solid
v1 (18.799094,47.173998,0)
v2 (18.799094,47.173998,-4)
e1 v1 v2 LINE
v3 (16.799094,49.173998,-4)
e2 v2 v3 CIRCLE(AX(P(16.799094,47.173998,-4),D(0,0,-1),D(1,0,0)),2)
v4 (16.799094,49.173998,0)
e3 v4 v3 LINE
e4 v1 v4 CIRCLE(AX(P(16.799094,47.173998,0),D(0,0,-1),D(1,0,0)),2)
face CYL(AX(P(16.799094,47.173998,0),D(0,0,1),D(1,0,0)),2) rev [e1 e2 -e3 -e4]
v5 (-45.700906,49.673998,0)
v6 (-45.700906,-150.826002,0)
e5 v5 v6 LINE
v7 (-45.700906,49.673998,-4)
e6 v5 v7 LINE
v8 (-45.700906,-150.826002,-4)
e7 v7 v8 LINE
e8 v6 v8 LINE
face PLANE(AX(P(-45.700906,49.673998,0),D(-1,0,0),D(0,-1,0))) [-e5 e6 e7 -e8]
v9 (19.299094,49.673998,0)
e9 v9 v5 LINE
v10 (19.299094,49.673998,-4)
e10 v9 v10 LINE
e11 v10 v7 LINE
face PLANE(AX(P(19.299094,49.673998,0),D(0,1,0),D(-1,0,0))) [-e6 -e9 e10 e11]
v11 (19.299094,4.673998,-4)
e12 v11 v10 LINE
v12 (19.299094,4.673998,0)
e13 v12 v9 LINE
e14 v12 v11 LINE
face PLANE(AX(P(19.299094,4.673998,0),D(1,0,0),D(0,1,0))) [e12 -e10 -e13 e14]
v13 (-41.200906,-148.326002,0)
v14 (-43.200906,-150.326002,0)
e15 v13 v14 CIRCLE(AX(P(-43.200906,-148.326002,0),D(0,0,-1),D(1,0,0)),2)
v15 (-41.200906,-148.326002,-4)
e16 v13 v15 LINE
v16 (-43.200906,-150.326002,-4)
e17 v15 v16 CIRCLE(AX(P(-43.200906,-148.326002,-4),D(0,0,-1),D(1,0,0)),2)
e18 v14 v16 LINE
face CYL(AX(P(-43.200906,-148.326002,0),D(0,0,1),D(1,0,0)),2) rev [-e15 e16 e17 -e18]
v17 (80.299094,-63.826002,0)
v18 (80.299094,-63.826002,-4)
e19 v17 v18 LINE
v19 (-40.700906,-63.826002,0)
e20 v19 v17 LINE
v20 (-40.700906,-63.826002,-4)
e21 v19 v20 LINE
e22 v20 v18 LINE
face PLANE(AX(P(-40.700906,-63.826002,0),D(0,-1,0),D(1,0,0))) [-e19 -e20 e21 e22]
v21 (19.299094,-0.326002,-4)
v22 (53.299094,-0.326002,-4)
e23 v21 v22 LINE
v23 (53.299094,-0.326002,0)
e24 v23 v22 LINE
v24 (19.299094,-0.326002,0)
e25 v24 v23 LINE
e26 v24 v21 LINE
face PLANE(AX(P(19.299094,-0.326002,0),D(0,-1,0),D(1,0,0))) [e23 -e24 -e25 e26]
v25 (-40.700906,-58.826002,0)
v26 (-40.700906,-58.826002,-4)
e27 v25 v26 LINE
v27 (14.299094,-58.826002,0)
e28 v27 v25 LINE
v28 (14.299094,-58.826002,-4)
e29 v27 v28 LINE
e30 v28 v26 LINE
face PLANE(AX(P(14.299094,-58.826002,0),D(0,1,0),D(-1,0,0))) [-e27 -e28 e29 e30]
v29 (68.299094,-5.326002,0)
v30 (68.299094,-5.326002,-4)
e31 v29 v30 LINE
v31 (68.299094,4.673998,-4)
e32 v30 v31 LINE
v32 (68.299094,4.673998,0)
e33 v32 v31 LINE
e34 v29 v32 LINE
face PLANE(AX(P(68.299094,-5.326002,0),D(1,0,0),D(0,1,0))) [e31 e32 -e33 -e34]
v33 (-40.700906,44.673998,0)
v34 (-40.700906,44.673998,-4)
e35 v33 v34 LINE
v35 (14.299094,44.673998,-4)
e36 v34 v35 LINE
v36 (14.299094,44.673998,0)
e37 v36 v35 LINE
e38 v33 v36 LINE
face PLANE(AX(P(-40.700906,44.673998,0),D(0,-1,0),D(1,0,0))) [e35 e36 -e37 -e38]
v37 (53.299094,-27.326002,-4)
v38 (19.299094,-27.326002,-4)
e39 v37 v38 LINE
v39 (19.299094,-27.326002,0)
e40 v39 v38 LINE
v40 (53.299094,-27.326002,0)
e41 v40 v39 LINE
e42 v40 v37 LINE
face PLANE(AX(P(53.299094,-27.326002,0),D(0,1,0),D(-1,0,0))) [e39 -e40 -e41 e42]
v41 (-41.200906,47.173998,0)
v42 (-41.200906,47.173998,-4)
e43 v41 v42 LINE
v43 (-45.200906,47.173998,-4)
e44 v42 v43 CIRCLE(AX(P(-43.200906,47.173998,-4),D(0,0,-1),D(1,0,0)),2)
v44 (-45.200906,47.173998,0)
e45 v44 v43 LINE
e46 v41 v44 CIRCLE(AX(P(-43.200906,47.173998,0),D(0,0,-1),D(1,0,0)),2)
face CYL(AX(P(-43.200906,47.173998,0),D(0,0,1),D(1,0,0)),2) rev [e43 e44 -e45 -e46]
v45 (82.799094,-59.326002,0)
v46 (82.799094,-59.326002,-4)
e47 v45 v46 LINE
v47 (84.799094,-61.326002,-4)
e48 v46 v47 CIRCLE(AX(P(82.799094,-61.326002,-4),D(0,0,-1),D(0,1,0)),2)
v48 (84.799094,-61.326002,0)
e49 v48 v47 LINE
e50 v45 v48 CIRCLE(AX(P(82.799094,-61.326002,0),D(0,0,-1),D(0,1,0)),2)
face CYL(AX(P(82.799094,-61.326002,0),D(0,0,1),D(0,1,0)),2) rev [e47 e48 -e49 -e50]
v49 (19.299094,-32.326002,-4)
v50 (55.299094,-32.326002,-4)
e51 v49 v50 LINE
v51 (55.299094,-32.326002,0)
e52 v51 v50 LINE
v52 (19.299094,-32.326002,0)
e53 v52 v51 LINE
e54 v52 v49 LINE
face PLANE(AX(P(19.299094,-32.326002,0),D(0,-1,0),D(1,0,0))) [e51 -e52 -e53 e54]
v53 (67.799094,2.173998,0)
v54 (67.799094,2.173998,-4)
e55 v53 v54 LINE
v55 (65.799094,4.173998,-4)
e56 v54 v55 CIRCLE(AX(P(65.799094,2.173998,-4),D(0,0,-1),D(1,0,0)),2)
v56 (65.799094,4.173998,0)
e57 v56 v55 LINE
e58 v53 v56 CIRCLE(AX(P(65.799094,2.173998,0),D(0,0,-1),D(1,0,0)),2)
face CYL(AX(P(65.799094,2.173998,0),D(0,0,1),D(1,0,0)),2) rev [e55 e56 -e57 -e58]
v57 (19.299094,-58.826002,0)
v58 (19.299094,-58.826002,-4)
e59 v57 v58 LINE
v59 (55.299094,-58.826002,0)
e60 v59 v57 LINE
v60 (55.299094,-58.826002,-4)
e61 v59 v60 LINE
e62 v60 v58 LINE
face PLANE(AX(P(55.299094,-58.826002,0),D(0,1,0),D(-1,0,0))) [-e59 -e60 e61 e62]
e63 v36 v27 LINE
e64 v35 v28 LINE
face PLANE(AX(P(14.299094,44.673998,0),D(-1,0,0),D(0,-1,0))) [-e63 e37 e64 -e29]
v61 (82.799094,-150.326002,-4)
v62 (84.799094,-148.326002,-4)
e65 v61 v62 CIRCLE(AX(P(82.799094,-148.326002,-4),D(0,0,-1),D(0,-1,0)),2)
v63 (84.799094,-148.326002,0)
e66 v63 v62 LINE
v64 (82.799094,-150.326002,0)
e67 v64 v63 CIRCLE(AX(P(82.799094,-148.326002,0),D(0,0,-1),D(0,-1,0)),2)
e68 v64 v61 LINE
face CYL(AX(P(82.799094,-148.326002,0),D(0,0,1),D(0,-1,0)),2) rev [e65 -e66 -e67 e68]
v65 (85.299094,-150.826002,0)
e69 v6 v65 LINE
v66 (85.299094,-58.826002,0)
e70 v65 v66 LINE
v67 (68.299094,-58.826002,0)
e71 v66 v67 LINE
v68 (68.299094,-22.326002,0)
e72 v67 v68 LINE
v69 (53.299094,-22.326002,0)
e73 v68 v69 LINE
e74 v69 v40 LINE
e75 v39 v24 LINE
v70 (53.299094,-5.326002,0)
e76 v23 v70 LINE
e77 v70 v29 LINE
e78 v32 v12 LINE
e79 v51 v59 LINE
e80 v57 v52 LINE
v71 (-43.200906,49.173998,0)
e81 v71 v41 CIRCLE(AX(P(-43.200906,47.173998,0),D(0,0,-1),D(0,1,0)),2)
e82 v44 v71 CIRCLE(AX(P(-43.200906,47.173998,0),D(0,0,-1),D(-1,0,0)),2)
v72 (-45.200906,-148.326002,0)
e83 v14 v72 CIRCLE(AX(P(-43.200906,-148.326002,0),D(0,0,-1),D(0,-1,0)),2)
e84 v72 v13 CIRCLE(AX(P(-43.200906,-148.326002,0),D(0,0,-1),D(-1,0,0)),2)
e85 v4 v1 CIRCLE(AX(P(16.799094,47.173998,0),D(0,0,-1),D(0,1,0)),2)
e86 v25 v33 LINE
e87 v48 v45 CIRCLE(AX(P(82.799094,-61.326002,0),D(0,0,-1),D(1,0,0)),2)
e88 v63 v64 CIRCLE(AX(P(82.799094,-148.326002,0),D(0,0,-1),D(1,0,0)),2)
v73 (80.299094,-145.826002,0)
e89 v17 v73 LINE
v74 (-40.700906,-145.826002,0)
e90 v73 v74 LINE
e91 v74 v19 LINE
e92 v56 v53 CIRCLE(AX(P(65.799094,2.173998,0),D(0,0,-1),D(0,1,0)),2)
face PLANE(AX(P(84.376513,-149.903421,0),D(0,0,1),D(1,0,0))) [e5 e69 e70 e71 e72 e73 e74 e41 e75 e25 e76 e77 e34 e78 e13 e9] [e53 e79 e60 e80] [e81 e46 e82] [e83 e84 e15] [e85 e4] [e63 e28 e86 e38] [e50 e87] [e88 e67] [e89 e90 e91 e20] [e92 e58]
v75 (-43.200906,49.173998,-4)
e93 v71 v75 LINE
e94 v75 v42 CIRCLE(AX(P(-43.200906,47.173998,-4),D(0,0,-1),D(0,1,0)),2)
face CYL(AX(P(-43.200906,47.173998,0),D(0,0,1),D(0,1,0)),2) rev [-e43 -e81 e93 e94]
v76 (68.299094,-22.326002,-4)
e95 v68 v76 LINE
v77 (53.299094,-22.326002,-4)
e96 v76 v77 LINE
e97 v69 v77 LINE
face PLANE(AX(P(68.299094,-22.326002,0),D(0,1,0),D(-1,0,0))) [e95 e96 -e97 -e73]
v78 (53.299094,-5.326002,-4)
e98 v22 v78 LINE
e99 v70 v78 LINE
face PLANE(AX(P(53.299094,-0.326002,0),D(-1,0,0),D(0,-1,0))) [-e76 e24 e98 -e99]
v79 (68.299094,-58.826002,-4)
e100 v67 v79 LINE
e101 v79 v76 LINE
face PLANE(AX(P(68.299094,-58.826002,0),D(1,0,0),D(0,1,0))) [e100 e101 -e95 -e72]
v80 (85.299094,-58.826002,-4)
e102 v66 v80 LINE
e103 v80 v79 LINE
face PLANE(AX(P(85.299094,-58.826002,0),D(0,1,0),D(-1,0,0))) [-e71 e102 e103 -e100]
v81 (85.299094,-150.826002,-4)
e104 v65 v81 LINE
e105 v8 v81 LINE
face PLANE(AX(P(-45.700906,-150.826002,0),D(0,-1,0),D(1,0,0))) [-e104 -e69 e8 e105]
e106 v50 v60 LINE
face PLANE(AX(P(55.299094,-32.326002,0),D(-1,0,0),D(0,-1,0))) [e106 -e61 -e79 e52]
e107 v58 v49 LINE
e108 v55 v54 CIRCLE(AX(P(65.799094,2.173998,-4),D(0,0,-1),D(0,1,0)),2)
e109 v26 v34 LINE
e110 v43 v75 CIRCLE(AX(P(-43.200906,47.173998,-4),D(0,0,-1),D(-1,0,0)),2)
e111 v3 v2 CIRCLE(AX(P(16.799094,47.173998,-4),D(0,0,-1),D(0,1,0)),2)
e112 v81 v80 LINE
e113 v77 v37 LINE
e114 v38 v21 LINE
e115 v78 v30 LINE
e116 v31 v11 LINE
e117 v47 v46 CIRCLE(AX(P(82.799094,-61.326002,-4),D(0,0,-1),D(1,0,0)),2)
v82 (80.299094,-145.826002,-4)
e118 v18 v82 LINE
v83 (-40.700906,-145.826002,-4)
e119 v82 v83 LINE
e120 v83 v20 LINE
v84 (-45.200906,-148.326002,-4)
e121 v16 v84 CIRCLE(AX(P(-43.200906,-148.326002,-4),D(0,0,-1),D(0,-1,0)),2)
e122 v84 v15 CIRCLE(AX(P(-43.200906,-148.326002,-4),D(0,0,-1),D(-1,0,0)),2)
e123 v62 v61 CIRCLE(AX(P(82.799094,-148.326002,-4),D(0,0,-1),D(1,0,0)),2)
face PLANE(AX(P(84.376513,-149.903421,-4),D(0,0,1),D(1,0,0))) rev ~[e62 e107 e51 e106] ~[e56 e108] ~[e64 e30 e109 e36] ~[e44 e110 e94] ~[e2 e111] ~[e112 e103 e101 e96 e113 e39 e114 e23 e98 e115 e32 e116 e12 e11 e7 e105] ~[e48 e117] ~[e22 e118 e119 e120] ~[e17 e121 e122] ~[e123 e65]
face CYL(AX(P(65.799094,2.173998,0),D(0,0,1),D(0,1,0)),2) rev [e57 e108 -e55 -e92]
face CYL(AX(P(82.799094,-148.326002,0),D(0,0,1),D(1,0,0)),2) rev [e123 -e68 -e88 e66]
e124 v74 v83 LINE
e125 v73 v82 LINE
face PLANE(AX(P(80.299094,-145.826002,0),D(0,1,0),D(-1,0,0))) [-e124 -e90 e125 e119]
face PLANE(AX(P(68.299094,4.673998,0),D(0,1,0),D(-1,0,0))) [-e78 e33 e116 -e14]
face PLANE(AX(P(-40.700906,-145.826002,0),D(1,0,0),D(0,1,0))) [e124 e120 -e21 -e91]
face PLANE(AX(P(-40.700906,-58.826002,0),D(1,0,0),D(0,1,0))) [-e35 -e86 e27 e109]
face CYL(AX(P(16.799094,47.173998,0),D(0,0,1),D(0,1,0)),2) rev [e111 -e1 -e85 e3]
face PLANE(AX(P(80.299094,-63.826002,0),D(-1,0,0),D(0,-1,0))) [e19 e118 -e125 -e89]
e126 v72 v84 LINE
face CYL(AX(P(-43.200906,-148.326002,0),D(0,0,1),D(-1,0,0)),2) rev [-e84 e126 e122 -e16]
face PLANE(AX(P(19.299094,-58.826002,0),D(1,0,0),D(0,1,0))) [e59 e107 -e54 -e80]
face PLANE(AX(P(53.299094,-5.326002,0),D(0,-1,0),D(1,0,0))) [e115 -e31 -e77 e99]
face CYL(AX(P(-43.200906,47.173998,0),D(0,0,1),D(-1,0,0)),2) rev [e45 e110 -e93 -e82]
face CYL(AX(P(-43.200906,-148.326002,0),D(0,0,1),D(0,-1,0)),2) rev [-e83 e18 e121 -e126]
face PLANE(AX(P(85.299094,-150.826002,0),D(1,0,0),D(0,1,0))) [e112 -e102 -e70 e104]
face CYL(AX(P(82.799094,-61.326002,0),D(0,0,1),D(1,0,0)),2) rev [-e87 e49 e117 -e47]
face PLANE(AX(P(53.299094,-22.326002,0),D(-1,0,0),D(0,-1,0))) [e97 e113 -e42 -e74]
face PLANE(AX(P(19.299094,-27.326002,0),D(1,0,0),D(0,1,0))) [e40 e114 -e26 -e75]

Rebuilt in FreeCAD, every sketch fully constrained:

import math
import FreeCAD as App
import Part
import Sketcher

V = App.Vector


def add_polygon(sketch, points):
    """Adds a closed chain of lines whose ends are joined by coincident constraints."""
    first, n = sketch.GeometryCount, len(points)
    for a, b in zip(points, points[1:] + points[:1]):
        sketch.addGeometry(Part.LineSegment(App.Vector(*a, 0), App.Vector(*b, 0)), False)
    for i in range(n):
        sketch.addConstraint(Sketcher.Constraint("Coincident", first + i, 2, first + (i + 1) % n, 1))

doc = App.newDocument("Part")
body = doc.addObject("PartDesign::Body", "Body")

# Sketch on XY plane
sketch1 = body.newObject("Sketcher::SketchObject", "Sketch")
sketch1.AttachmentSupport = (doc.getObject("XY_Plane"), [""])
sketch1.MapMode = "FlatFace"
add_polygon(sketch1, [(85.3, -150.8), (85.3, -58.8), (68.3, -58.8), (68.3, -22.3), (53.3, -22.3), (53.3, -27.3), (19.3, -27.3), (19.3, -0.3), (53.3, -0.3), (53.3, -5.3), (68.3, -5.3), (68.3, 4.7), (19.3, 4.7), (19.3, 49.7), (-45.7, 49.7), (-45.7, -150.8)])  # lines 0-15
sketch1.addGeometry(Part.ArcOfCircle(Part.Circle(V(65.8, 2.2, 0), V(0, 0, 1), 2), math.radians(90), math.radians(360)), False)  # 16
sketch1.addGeometry(Part.ArcOfCircle(Part.Circle(V(65.8, 2.2, 0), V(0, 0, 1), 2), math.radians(0), math.radians(90)), False)  # 17
add_polygon(sketch1, [(14.3, -58.8), (-40.7, -58.8), (-40.7, 44.7), (14.3, 44.7)])  # lines 18-21
sketch1.addGeometry(Part.ArcOfCircle(Part.Circle(V(-43.2, -148.3, 0), V(0, 0, 1), 2), math.radians(0), math.radians(180)), False)  # 22
sketch1.addGeometry(Part.ArcOfCircle(Part.Circle(V(-43.2, -148.3, 0), V(0, 0, 1), 2), math.radians(-90), math.radians(0)), False)  # 23
sketch1.addGeometry(Part.ArcOfCircle(Part.Circle(V(-43.2, -148.3, 0), V(0, 0, 1), 2), math.radians(180), math.radians(270)), False)  # 24
add_polygon(sketch1, [(-40.7, -63.8), (80.3, -63.8), (80.3, -145.8), (-40.7, -145.8)])  # lines 25-28
sketch1.addGeometry(Part.ArcOfCircle(Part.Circle(V(82.8, -148.3, 0), V(0, 0, 1), 2), math.radians(-90), math.radians(0)), False)  # 29
sketch1.addGeometry(Part.ArcOfCircle(Part.Circle(V(82.8, -148.3, 0), V(0, 0, 1), 2), math.radians(0), math.radians(270)), False)  # 30
sketch1.addGeometry(Part.ArcOfCircle(Part.Circle(V(82.8, -61.3, 0), V(0, 0, 1), 2), math.radians(0), math.radians(90)), False)  # 31
sketch1.addGeometry(Part.ArcOfCircle(Part.Circle(V(82.8, -61.3, 0), V(0, 0, 1), 2), math.radians(90), math.radians(360)), False)  # 32
sketch1.addGeometry(Part.ArcOfCircle(Part.Circle(V(-43.2, 47.2, 0), V(0, 0, 1), 2), math.radians(0), math.radians(90)), False)  # 33
sketch1.addGeometry(Part.ArcOfCircle(Part.Circle(V(-43.2, 47.2, 0), V(0, 0, 1), 2), math.radians(180), math.radians(360)), False)  # 34
sketch1.addGeometry(Part.ArcOfCircle(Part.Circle(V(-43.2, 47.2, 0), V(0, 0, 1), 2), math.radians(90), math.radians(180)), False)  # 35
sketch1.addGeometry(Part.ArcOfCircle(Part.Circle(V(16.8, 47.2, 0), V(0, 0, 1), 2), math.radians(90), math.radians(360)), False)  # 36
sketch1.addGeometry(Part.ArcOfCircle(Part.Circle(V(16.8, 47.2, 0), V(0, 0, 1), 2), math.radians(0), math.radians(90)), False)  # 37
add_polygon(sketch1, [(55.3, -58.8), (19.3, -58.8), (19.3, -32.3), (55.3, -32.3)])  # lines 38-41
sketch1.addConstraint([
    Sketcher.Constraint("Tangent", 16, 1, 17, 2),
    Sketcher.Constraint("Coincident", 17, 1, 16, 2),
    Sketcher.Constraint("Tangent", 22, 1, 23, 2),
    Sketcher.Constraint("Tangent", 23, 1, 24, 2),
    Sketcher.Constraint("Tangent", 24, 1, 22, 2),
    Sketcher.Constraint("Tangent", 29, 1, 30, 2),
    Sketcher.Constraint("Coincident", 30, 1, 29, 2),
    Sketcher.Constraint("Tangent", 31, 1, 32, 2),
    Sketcher.Constraint("Coincident", 32, 1, 31, 2),
    Sketcher.Constraint("Tangent", 33, 1, 34, 2),
    Sketcher.Constraint("Tangent", 34, 1, 35, 2),
    Sketcher.Constraint("Tangent", 35, 1, 33, 2),
    Sketcher.Constraint("Tangent", 36, 1, 37, 2),
    Sketcher.Constraint("Coincident", 37, 1, 36, 2),
    Sketcher.Constraint("Vertical", 0),
    Sketcher.Constraint("Horizontal", 1),
    Sketcher.Constraint("Vertical", 2),
    Sketcher.Constraint("Horizontal", 3),
    Sketcher.Constraint("Vertical", 4),
    Sketcher.Constraint("Horizontal", 5),
    Sketcher.Constraint("Vertical", 6),
    Sketcher.Constraint("Horizontal", 7),
    Sketcher.Constraint("Vertical", 8),
    Sketcher.Constraint("Horizontal", 9),
    Sketcher.Constraint("Vertical", 10),
    Sketcher.Constraint("Horizontal", 11),
    Sketcher.Constraint("Vertical", 12),
    Sketcher.Constraint("Horizontal", 13),
    Sketcher.Constraint("Vertical", 14),
    Sketcher.Constraint("Horizontal", 15),
    Sketcher.Constraint("Horizontal", 18),
    Sketcher.Constraint("Vertical", 19),
    Sketcher.Constraint("Horizontal", 20),
    Sketcher.Constraint("Vertical", 21),
    Sketcher.Constraint("Horizontal", 25),
    Sketcher.Constraint("Vertical", 26),
    Sketcher.Constraint("Horizontal", 27),
    Sketcher.Constraint("Vertical", 28),
    Sketcher.Constraint("Horizontal", 38),
    Sketcher.Constraint("Vertical", 39),
    Sketcher.Constraint("Horizontal", 40),
    Sketcher.Constraint("Vertical", 41),
    Sketcher.Constraint("Equal", 17, 22),
    Sketcher.Constraint("Equal", 24, 29),
    Sketcher.Constraint("Equal", 30, 31),
    Sketcher.Constraint("Equal", 32, 33),
    Sketcher.Constraint("Equal", 35, 36),
    Sketcher.Constraint("Horizontal", 24, 3, 29, 3),
    Sketcher.Constraint("Horizontal", 35, 3, 36, 3),
    Sketcher.Constraint("Horizontal", 16, 3, 17, 1),
    Sketcher.Constraint("Horizontal", 1, 2, 18, 2),
    Sketcher.Constraint("Horizontal", 30, 3, 22, 1),
    Sketcher.Constraint("Horizontal", 22, 1, 24, 1),
    Sketcher.Constraint("Horizontal", 24, 1, 30, 1),
    Sketcher.Constraint("Horizontal", 32, 3, 31, 1),
    Sketcher.Constraint("Horizontal", 37, 3, 33, 1),
    Sketcher.Constraint("Horizontal", 33, 1, 34, 1),
    Sketcher.Constraint("Horizontal", 34, 1, 37, 1),
    Sketcher.Constraint("Horizontal", 21, 2, 38, 2),
    Sketcher.Constraint("Vertical", 30, 3, 31, 3),
    Sketcher.Constraint("Vertical", 24, 3, 33, 3),
    Sketcher.Constraint("Vertical", 4, 2, 7, 2),
    Sketcher.Constraint("Vertical", 2, 2, 9, 2),
    Sketcher.Constraint("Vertical", 6, 2, 11, 2),
    Sketcher.Constraint("Vertical", 17, 3, 16, 1),
    Sketcher.Constraint("Vertical", 35, 3, 23, 1),
    Sketcher.Constraint("Vertical", 19, 2, 27, 2),
    Sketcher.Constraint("Vertical", 32, 3, 29, 1),
    Sketcher.Constraint("Vertical", 29, 1, 32, 1),
    Sketcher.Constraint("Vertical", 23, 1, 35, 1),
    Sketcher.Constraint("Vertical", 37, 3, 36, 1),
    Sketcher.Constraint("Vertical", 12, 2, 38, 2),
    Sketcher.Constraint("Equal", 4, 8),
    Sketcher.Constraint("Radius", 16, 2.0),
    Sketcher.Constraint("DistanceX", 1, 2, 1, 1, 17.0),
    Sketcher.Constraint("DistanceX", 3, 2, 3, 1, 15.0),
    Sketcher.Constraint("DistanceX", 5, 2, 5, 1, 34.0),
    Sketcher.Constraint("DistanceX", 13, 2, 13, 1, 65.0),
    Sketcher.Constraint("DistanceX", 18, 2, 18, 1, 55.0),
    Sketcher.Constraint("DistanceX", 25, 1, 25, 2, 121.0),
    Sketcher.Constraint("DistanceX", 38, 2, 38, 1, 36.0),
    Sketcher.Constraint("DistanceY", 0, 1, 0, 2, 92.0),
    Sketcher.Constraint("DistanceY", 4, 2, 4, 1, 5.0),
    Sketcher.Constraint("DistanceY", 6, 1, 6, 2, 27.0),
    Sketcher.Constraint("DistanceY", 10, 1, 10, 2, 10.0),
    Sketcher.Constraint("DistanceY", 12, 1, 12, 2, 45.0),
    Sketcher.Constraint("DistanceY", 26, 2, 26, 1, 82.0),
    Sketcher.Constraint("DistanceY", 2, 1, 2, 2, 36.5),
    Sketcher.Constraint("DistanceY", 19, 1, 19, 2, 103.5),
    Sketcher.Constraint("DistanceY", 39, 1, 39, 2, 26.5),
    Sketcher.Constraint("DistanceX", 22, 3, 16, 3, 109.0),
    Sketcher.Constraint("DistanceX", 22, 3, 29, 3, 126.0),
    Sketcher.Constraint("DistanceY", 29, 3, 31, 3, 87.0),
    Sketcher.Constraint("DistanceY", 16, 3, 33, 3, 45.0),
    Sketcher.Constraint("DistanceX", 33, 3, 36, 3, 60.0),
    Sketcher.Constraint("DistanceY", 0, 2, 16, 3, 61.0),
    Sketcher.Constraint("DistanceY", 31, 3, 2, 2, 39.0),
    Sketcher.Constraint("DistanceX", 18, 2, 5, 2, 60.0),
    Sketcher.Constraint("DistanceY", 25, 2, 0, 2, 5.0),
    Sketcher.Constraint("DistanceX", 31, 3, 0, 2, 2.5),
    Sketcher.Constraint("DistanceX", -1, 1, 16, 3, 65.799094),
    Sketcher.Constraint("DistanceY", -1, 1, 16, 3, 2.173998),
])
pad1 = body.newObject("PartDesign::Pad", "Pad")
pad1.Profile = sketch1
pad1.Length = 4
pad1.Reversed = True

doc.recompute()
